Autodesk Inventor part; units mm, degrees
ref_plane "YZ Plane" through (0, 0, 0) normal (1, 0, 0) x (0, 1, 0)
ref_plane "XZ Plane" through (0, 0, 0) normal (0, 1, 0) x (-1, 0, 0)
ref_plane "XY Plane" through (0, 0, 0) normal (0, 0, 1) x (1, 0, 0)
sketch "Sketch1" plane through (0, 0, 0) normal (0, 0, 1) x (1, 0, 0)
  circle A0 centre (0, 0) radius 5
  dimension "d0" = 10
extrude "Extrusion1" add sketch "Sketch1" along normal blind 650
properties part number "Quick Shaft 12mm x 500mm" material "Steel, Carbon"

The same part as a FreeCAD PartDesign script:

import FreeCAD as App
import Part
import Sketcher
from FreeCAD import Vector

doc = App.newDocument("Part")
body = doc.addObject("PartDesign::Body", "Body")

sketch1 = doc.addObject("Sketcher::SketchObject", "Sketch")
body.addObject(sketch1)
sketch1.AttachmentSupport = (doc.XY_Plane, [""])
sketch1.MapMode = "FlatFace"
sketch1.addGeometry(Part.Circle(Vector(0, 0, 0), Vector(0, 0, 1), 5), False)
sketch1.addConstraint([
    Sketcher.Constraint("Coincident", 0, 3, -1, 1),
    Sketcher.Constraint("Diameter", 0, 10.0),
])
pad1 = doc.addObject("PartDesign::Pad", "Pad")
body.addObject(pad1)
pad1.Profile = sketch1
pad1.Length = 650

doc.recompute()
